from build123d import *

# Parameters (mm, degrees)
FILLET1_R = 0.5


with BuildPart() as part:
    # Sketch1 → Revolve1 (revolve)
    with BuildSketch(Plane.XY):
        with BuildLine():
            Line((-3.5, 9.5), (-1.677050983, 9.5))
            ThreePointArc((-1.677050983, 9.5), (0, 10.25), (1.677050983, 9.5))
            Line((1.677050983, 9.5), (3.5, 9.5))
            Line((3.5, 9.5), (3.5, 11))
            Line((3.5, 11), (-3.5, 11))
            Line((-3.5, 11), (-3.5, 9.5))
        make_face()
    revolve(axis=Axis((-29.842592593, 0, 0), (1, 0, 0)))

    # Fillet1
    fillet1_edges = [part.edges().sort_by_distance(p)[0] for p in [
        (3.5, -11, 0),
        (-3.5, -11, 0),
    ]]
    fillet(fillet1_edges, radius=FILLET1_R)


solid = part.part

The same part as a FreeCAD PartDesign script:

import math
import FreeCAD as App
import Part
import Sketcher
Q = App.Units.Quantity


def edges_at(feature, points):
    """Names of the edges that pass closest to the given points."""
    edges = feature.Shape.Edges
    near = lambda p: min(range(len(edges)), key=lambda i: edges[i].distToShape(Part.Vertex(*p))[0])
    return sorted({f"Edge{near(p) + 1}" for p in points})

doc = App.newDocument("Part")
body = doc.addObject("PartDesign::Body", "Body")

sketch1 = body.newObject("Sketcher::SketchObject", "Sketch")
sketch1.AttachmentSupport = (doc.getObject("XY_Plane"), [""])
sketch1.MapMode = "FlatFace"
sketch1.addGeometry([
    Part.LineSegment(App.Vector(-3.5, 9.5, 0), App.Vector(-1.7, 9.5, 0)),
    Part.ArcOfCircle(Part.Circle(App.Vector(0, 8, 0), App.Vector(0, 0, 1), 2.2), math.radians(42), math.radians(138)),
    Part.LineSegment(App.Vector(1.7, 9.5, 0), App.Vector(3.5, 9.5, 0)),
    Part.LineSegment(App.Vector(3.5, 9.5, 0), App.Vector(3.5, 11, 0)),
    Part.LineSegment(App.Vector(3.5, 11, 0), App.Vector(-3.5, 11, 0)),
    Part.LineSegment(App.Vector(-3.5, 11, 0), App.Vector(-3.5, 9.5, 0)),
], False)
sketch1.addConstraint([
    Sketcher.Constraint("Coincident", 0, 2, 1, 2),
    Sketcher.Constraint("Coincident", 1, 1, 2, 1),
    Sketcher.Constraint("Coincident", 2, 2, 3, 1),
    Sketcher.Constraint("Coincident", 3, 2, 4, 1),
    Sketcher.Constraint("Coincident", 4, 2, 5, 1),
    Sketcher.Constraint("Coincident", 5, 2, 0, 1),
    Sketcher.Constraint("Horizontal", 0),
    Sketcher.Constraint("Horizontal", 2),
    Sketcher.Constraint("Vertical", 3),
    Sketcher.Constraint("Horizontal", 4),
    Sketcher.Constraint("Vertical", 5),
    Sketcher.Constraint("Symmetric", 0, 2, 1, 1, -2),
    Sketcher.Constraint("Equal", 0, 2),
    Sketcher.Constraint("DistanceX", 4, 2, 4, 1, Q("7 mm")),
    Sketcher.Constraint("Radius", 1, Q("2.25 mm")),
    Sketcher.Constraint("DistanceY", 3, 1, 3, 2, Q("1.5 mm")),
    Sketcher.Constraint("DistanceY", -1, 1, 1, 3, Q("8 mm")),
    Sketcher.Constraint("DistanceY", -1, 1, 3, 2, Q("11 mm")),
])
revolution = body.newObject("PartDesign::Revolution", "Revolution")
revolution.Profile = sketch1
revolution.ReferenceAxis = (sketch1, ["H_Axis"])
revolution.Angle = 360
doc.recompute()

fillet = body.newObject("PartDesign::Fillet", "Fillet")
fillet.Base = (revolution, edges_at(revolution, [(3.5, -11, 0), (-3.5, -11, 0)]))
fillet.Radius = 0.5

doc.recompute()
